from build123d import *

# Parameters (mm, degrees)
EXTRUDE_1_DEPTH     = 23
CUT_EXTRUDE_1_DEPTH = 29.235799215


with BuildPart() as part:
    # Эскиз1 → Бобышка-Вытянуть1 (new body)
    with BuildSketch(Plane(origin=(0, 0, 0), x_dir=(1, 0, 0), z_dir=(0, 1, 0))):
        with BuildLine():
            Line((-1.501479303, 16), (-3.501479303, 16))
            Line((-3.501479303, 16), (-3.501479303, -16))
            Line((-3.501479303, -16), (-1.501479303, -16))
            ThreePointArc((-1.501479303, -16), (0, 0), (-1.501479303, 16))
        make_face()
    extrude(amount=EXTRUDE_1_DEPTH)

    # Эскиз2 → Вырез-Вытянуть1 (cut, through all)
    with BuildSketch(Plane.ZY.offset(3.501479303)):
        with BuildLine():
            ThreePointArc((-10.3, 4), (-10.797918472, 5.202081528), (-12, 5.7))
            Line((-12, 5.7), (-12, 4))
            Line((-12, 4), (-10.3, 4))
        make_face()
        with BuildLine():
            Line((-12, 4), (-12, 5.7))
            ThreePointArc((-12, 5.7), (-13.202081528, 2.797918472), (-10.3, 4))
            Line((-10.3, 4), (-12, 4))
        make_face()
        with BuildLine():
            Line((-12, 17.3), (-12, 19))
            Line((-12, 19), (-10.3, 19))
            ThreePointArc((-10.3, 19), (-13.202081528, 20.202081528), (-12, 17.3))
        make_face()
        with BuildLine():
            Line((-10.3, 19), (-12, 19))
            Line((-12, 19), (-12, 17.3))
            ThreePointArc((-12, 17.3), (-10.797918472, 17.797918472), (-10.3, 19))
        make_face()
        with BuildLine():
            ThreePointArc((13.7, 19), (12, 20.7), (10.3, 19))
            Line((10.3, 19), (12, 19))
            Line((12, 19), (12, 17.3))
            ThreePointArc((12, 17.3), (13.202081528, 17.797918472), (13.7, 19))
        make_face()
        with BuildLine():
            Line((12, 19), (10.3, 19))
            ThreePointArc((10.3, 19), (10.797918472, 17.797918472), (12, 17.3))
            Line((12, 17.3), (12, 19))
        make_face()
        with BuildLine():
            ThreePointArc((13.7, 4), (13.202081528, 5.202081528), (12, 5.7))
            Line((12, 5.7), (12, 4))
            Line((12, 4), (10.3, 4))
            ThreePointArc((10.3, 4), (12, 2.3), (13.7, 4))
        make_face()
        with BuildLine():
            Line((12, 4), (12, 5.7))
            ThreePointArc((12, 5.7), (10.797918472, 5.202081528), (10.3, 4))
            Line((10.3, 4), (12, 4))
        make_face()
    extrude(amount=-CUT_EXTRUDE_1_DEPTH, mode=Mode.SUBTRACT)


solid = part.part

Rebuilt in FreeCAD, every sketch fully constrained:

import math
import FreeCAD as App
import Part
import Sketcher

doc = App.newDocument("Part")
body = doc.addObject("PartDesign::Body", "Body")

# Sketch on XZ plane
sketch1 = body.newObject("Sketcher::SketchObject", "Sketch")
sketch1.AttachmentSupport = (doc.getObject("XZ_Plane"), [""])
sketch1.MapMode = "FlatFace"
sketch1.addGeometry([
    Part.LineSegment(App.Vector(-1.5, -16, 0), App.Vector(-3.5, -16, 0)),
    Part.LineSegment(App.Vector(-3.5, -16, 0), App.Vector(-3.5, 16, 0)),
    Part.LineSegment(App.Vector(-3.5, 16, 0), App.Vector(-1.5, 16, 0)),
    Part.ArcOfCircle(Part.Circle(App.Vector(-86, 0, 0), App.Vector(0, 0, 1), 86), math.radians(-11), math.radians(11)),
], False)
sketch1.addConstraint([
    Sketcher.Constraint("Coincident", 0, 2, 1, 1),
    Sketcher.Constraint("Coincident", 1, 2, 2, 1),
    Sketcher.Constraint("Coincident", 2, 2, 3, 2),
    Sketcher.Constraint("Coincident", 3, 1, 0, 1),
    Sketcher.Constraint("Horizontal", 0),
    Sketcher.Constraint("Vertical", 1),
    Sketcher.Constraint("Horizontal", 2),
    Sketcher.Constraint("Symmetric", 2, 2, 3, 1, -1),
    Sketcher.Constraint("Radius", 3, 86.0),
    Sketcher.Constraint("DistanceX", 0, 2, 0, 1, 2.0),
    Sketcher.Constraint("DistanceY", 1, 1, 1, 2, 32.0),
    Sketcher.Constraint("DistanceX", 3, 3, -1, 1, 86.0),
])
pad1 = body.newObject("PartDesign::Pad", "Pad")
pad1.Profile = sketch1
pad1.Length = 23
pad1.Reversed = True

# Sketch on YZ plane
sketch2 = body.newObject("Sketcher::SketchObject", "Sketch001")
sketch2.AttachmentSupport = (doc.getObject("YZ_Plane"), [""])
sketch2.MapMode = "FlatFace"
sketch2.AttachmentOffset = App.Placement(App.Vector(0, 0, -3.501479), App.Rotation())
sketch2.addGeometry([
    Part.ArcOfCircle(Part.Circle(App.Vector(4, -12, 0), App.Vector(0, 0, 1), 1.7), math.radians(0), math.radians(90)),  # 0
    Part.ArcOfCircle(Part.Circle(App.Vector(4, -12, 0), App.Vector(0, 0, 1), 1.7), math.radians(90), math.radians(360)),  # 1
    Part.ArcOfCircle(Part.Circle(App.Vector(19, -12, 0), App.Vector(0, 0, 1), 1.7), math.radians(180), math.radians(450)),  # 2
    Part.ArcOfCircle(Part.Circle(App.Vector(19, -12, 0), App.Vector(0, 0, 1), 1.7), math.radians(90), math.radians(180)),  # 3
    Part.ArcOfCircle(Part.Circle(App.Vector(19, 12, 0), App.Vector(0, 0, 1), 1.7), math.radians(-90), math.radians(90)),  # 4
    Part.ArcOfCircle(Part.Circle(App.Vector(19, 12, 0), App.Vector(0, 0, 1), 1.7), math.radians(180), math.radians(270)),  # 5
    Part.ArcOfCircle(Part.Circle(App.Vector(19, 12, 0), App.Vector(0, 0, 1), 1.7), math.radians(90), math.radians(180)),  # 6
    Part.ArcOfCircle(Part.Circle(App.Vector(4, 12, 0), App.Vector(0, 0, 1), 1.7), math.radians(0), math.radians(90)),  # 7
    Part.ArcOfCircle(Part.Circle(App.Vector(4, 12, 0), App.Vector(0, 0, 1), 1.7), math.radians(-90), math.radians(0)),  # 8
    Part.ArcOfCircle(Part.Circle(App.Vector(4, 12, 0), App.Vector(0, 0, 1), 1.7), math.radians(90), math.radians(270)),  # 9
], False)
sketch2.addConstraint([
    Sketcher.Constraint("Tangent", 0, 1, 1, 2),
    Sketcher.Constraint("Coincident", 1, 1, 0, 2),
    Sketcher.Constraint("Tangent", 2, 1, 3, 2),
    Sketcher.Constraint("Coincident", 3, 1, 2, 2),
    Sketcher.Constraint("Tangent", 4, 1, 5, 2),
    Sketcher.Constraint("Tangent", 5, 1, 6, 2),
    Sketcher.Constraint("Tangent", 6, 1, 4, 2),
    Sketcher.Constraint("Tangent", 7, 1, 8, 2),
    Sketcher.Constraint("Tangent", 8, 1, 9, 2),
    Sketcher.Constraint("Tangent", 9, 1, 7, 2),
    Sketcher.Constraint("Equal", 1, 2),
    Sketcher.Constraint("Equal", 3, 4),
    Sketcher.Constraint("Equal", 6, 7),
    Sketcher.Constraint("Symmetric", 2, 3, 4, 3, -1),
    Sketcher.Constraint("Symmetric", 0, 3, 7, 3, -1),
    Sketcher.Constraint("Horizontal", 1, 3, 2, 3),
    Sketcher.Constraint("Horizontal", 3, 3, 0, 1),
    Sketcher.Constraint("Horizontal", 0, 1, 2, 1),
    Sketcher.Constraint("Horizontal", 9, 3, 5, 1),
    Sketcher.Constraint("Horizontal", 5, 1, 7, 1),
    Sketcher.Constraint("Vertical", 9, 3, 1, 1),
    Sketcher.Constraint("Vertical", 6, 3, 3, 1),
    Sketcher.Constraint("Vertical", 3, 1, 4, 1),
    Sketcher.Constraint("Vertical", 4, 1, 6, 1),
    Sketcher.Constraint("Vertical", 1, 1, 8, 1),
    Sketcher.Constraint("Vertical", 8, 1, 9, 1),
    Sketcher.Constraint("Radius", 0, 1.7),
    Sketcher.Constraint("DistanceX", -1, 1, 0, 3, 4.0),
    Sketcher.Constraint("DistanceY", 0, 3, -1, 1, 12.0),
    Sketcher.Constraint("DistanceX", -1, 1, 2, 3, 19.0),
])
pocket1 = body.newObject("PartDesign::Pocket", "Pocket")
pocket1.Profile = sketch2
pocket1.Type = "ThroughAll"
pocket1.Reversed = True

doc.recompute()
